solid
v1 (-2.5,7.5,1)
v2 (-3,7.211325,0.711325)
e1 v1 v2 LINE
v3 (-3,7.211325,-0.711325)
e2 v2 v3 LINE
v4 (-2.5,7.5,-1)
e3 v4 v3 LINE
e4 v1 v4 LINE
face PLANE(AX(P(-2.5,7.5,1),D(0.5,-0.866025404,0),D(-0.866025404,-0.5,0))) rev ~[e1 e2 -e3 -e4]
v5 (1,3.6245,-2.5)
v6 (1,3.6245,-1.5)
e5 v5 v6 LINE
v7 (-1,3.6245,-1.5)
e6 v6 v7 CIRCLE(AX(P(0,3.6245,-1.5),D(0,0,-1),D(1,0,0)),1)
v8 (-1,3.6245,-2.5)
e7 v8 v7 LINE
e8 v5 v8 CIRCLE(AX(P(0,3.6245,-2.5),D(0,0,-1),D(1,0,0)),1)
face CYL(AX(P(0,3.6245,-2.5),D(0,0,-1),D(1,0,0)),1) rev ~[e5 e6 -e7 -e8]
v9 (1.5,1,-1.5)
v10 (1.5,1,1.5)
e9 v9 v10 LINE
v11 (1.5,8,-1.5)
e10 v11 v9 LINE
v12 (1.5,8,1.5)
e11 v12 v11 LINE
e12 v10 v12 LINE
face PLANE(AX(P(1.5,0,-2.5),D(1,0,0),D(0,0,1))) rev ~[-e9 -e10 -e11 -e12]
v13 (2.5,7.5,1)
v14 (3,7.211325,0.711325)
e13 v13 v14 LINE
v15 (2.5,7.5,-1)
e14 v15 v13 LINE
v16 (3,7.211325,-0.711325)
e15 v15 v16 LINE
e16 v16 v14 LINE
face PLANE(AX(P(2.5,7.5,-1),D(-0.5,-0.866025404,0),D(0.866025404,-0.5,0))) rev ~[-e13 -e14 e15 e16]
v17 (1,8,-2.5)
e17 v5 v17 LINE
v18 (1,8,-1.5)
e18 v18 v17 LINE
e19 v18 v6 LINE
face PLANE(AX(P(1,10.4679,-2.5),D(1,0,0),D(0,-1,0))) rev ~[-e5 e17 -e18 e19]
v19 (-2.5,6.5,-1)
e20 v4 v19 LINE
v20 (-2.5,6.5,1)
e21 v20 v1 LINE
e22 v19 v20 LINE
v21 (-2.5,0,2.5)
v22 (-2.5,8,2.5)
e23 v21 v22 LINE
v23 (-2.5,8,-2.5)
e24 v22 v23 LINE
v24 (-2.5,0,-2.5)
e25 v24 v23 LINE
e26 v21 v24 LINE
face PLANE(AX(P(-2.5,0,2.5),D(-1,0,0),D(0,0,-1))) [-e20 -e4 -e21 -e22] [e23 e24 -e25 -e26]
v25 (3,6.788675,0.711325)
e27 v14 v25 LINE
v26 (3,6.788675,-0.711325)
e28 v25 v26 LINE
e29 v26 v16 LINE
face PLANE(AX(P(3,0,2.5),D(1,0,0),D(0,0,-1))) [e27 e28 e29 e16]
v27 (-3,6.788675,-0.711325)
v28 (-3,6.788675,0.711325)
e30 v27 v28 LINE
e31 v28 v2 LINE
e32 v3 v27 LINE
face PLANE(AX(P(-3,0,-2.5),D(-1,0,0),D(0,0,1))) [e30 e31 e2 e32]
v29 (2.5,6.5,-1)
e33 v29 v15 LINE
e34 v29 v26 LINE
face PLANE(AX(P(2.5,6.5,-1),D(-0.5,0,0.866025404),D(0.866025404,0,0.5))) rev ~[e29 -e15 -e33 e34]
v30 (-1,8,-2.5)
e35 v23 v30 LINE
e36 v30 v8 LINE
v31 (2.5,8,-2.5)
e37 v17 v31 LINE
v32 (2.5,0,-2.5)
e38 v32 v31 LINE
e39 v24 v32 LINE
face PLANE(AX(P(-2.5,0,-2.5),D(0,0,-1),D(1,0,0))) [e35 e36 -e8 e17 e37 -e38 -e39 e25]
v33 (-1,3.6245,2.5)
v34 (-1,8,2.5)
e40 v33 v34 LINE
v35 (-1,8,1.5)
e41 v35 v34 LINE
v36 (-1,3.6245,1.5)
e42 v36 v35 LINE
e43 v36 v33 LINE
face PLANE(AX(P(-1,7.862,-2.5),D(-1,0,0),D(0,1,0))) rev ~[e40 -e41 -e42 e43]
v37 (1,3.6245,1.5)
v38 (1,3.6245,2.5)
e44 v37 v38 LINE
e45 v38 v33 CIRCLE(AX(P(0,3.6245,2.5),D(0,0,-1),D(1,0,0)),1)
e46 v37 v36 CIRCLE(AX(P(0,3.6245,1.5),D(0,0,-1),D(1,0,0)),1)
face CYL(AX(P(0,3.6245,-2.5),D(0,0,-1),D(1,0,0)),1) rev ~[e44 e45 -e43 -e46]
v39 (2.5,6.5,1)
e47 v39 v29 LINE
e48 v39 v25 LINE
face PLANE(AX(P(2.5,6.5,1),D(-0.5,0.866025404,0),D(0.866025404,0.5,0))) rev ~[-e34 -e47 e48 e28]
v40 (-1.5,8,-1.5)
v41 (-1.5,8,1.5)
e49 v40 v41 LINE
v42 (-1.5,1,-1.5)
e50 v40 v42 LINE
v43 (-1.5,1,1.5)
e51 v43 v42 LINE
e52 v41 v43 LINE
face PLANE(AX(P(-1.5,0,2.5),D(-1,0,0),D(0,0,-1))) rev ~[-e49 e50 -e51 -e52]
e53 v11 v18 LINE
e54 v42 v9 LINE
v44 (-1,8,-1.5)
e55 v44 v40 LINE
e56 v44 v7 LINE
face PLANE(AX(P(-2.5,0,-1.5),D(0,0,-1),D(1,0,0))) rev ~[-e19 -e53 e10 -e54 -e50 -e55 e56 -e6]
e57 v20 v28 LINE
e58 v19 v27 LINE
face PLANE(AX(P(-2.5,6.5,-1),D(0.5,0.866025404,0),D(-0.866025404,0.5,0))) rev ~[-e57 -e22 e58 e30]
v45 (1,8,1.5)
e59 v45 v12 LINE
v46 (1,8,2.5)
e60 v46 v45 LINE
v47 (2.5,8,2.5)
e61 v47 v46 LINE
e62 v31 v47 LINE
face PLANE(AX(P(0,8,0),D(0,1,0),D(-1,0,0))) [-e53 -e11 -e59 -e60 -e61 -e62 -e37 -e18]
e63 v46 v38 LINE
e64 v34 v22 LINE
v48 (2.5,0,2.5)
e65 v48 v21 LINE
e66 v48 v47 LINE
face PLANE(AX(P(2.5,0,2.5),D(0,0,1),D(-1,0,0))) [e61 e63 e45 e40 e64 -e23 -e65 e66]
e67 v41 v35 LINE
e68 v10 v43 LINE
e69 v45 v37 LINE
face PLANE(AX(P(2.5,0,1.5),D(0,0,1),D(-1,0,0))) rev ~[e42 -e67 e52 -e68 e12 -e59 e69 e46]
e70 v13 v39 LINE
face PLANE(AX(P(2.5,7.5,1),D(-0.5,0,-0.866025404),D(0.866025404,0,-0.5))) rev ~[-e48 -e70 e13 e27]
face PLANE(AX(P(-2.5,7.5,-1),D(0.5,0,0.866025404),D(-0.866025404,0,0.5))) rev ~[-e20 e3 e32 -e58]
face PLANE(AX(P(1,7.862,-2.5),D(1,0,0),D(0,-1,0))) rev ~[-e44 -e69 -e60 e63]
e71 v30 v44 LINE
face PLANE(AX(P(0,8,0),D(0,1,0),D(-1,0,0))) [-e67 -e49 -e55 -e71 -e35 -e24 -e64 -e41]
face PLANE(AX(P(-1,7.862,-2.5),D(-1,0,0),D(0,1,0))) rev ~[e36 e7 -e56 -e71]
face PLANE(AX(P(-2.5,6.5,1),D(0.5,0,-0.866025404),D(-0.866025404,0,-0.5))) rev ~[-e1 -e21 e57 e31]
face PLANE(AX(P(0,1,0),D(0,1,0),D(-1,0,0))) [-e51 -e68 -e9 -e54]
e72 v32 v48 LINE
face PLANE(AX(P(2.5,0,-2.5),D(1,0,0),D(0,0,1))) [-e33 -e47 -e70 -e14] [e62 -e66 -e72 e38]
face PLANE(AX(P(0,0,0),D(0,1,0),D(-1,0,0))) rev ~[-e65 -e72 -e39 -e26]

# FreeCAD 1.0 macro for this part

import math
import FreeCAD as App
import Part
import Sketcher

V = App.Vector
Q = App.Units.Quantity


def faces_at(feature, points):
    """Names of the faces that lie closest to the given points."""
    faces = feature.Shape.Faces
    near = lambda p: min(range(len(faces)), key=lambda i: faces[i].distToShape(Part.Vertex(*p))[0])
    return sorted({f"Face{near(p) + 1}" for p in points})

doc = App.newDocument("Part")
body = doc.addObject("PartDesign::Body", "Body")

# Sketch on XZ plane
sketch1 = doc.addObject("Sketcher::SketchObject", "Sketch")
body.addObject(sketch1)
sketch1.AttachmentSupport = (doc.XZ_Plane, [""])
sketch1.MapMode = "FlatFace"
sketch1.addGeometry(Part.LineSegment(V(-2, 2, 0), V(2, 2, 0)), False)
sketch1.addGeometry(Part.LineSegment(V(2, 2, 0), V(2, -2, 0)), False)
sketch1.addGeometry(Part.LineSegment(V(2, -2, 0), V(-2, -2, 0)), False)
sketch1.addGeometry(Part.LineSegment(V(-2, -2, 0), V(-2, 2, 0)), False)
sketch1.addConstraint(Sketcher.Constraint("Coincident", 0, 2, 1, 1))
sketch1.addConstraint(Sketcher.Constraint("Coincident", 1, 2, 2, 1))
sketch1.addConstraint(Sketcher.Constraint("Coincident", 2, 2, 3, 1))
sketch1.addConstraint(Sketcher.Constraint("Coincident", 3, 2, 0, 1))
sketch1.addConstraint(Sketcher.Constraint("Horizontal", 0))
sketch1.addConstraint(Sketcher.Constraint("Vertical", 1))
sketch1.addConstraint(Sketcher.Constraint("Horizontal", 2))
sketch1.addConstraint(Sketcher.Constraint("Vertical", 3))
sketch1.addConstraint(Sketcher.Constraint("Symmetric", 0, 2, 2, 2, -1, 1))
sketch1.addConstraint(Sketcher.Constraint("Equal", 2, 1))
sketch1.addConstraint(Sketcher.Constraint("DistanceX", 0, 1, 0, 2, Q("5 mm")))
pad1 = doc.addObject("PartDesign::Pad", "Pad")
body.addObject(pad1)
pad1.Profile = sketch1
pad1.Length = 8
pad1.Reversed = True
doc.recompute()

thickness = doc.addObject("PartDesign::Thickness", "Thickness")
body.addObject(thickness)
thickness.Base = (pad1, faces_at(pad1, [(-0.833, 8, -0.833)]))
thickness.Value = 1
thickness.Reversed = True
thickness.Join = "Intersection"

# Sketch on YZ plane
sketch2 = doc.addObject("Sketcher::SketchObject", "Sketch001")
body.addObject(sketch2)
sketch2.AttachmentSupport = (doc.YZ_Plane, [""])
sketch2.MapMode = "FlatFace"
sketch2.AttachmentOffset = App.Placement(V(0, 0, 2.5), App.Rotation())
sketch2.addGeometry(Part.LineSegment(V(7.5, 1, 0), V(6.5, 1, 0)), False)
sketch2.addGeometry(Part.LineSegment(V(6.5, 1, 0), V(6.5, -1, 0)), False)
sketch2.addGeometry(Part.LineSegment(V(6.5, -1, 0), V(7.5, -1, 0)), False)
sketch2.addGeometry(Part.LineSegment(V(7.5, -1, 0), V(7.5, 1, 0)), False)
sketch2.addConstraint(Sketcher.Constraint("Coincident", 0, 2, 1, 1))
sketch2.addConstraint(Sketcher.Constraint("Coincident", 1, 2, 2, 1))
sketch2.addConstraint(Sketcher.Constraint("Coincident", 2, 2, 3, 1))
sketch2.addConstraint(Sketcher.Constraint("Coincident", 3, 2, 0, 1))
sketch2.addConstraint(Sketcher.Constraint("Horizontal", 0))
sketch2.addConstraint(Sketcher.Constraint("Vertical", 1))
sketch2.addConstraint(Sketcher.Constraint("Horizontal", 2))
sketch2.addConstraint(Sketcher.Constraint("Vertical", 3))
sketch2.addConstraint(Sketcher.Constraint("DistanceX", 0, 2, 0, 1, Q("1 mm")))
sketch2.addConstraint(Sketcher.Constraint("DistanceY", 1, 2, 1, 1, Q("2 mm")))
sketch2.addConstraint(Sketcher.Constraint("DistanceY", -1, 1, 0, 2, Q("1 mm")))
sketch2.addConstraint(Sketcher.Constraint("DistanceX", -1, 1, 0, 2, Q("6.5 mm")))
pad2 = doc.addObject("PartDesign::Pad", "Pad001")
body.addObject(pad2)
pad2.Profile = sketch2
pad2.Length = 0.5
pad2.TaperAngle = -30

# Sketch on YZ plane
sketch3 = doc.addObject("Sketcher::SketchObject", "Sketch002")
body.addObject(sketch3)
sketch3.AttachmentSupport = (doc.YZ_Plane, [""])
sketch3.MapMode = "FlatFace"
sketch3.AttachmentOffset = App.Placement(V(0, 0, -2.5), App.Rotation())
sketch3.addGeometry(Part.LineSegment(V(7.5, -1, 0), V(6.5, -1, 0)), False)
sketch3.addGeometry(Part.LineSegment(V(6.5, -1, 0), V(6.5, 1, 0)), False)
sketch3.addGeometry(Part.LineSegment(V(6.5, 1, 0), V(7.5, 1, 0)), False)
sketch3.addGeometry(Part.LineSegment(V(7.5, 1, 0), V(7.5, -1, 0)), False)
sketch3.addConstraint(Sketcher.Constraint("Coincident", 0, 2, 1, 1))
sketch3.addConstraint(Sketcher.Constraint("Coincident", 1, 2, 2, 1))
sketch3.addConstraint(Sketcher.Constraint("Coincident", 2, 2, 3, 1))
sketch3.addConstraint(Sketcher.Constraint("Coincident", 3, 2, 0, 1))
sketch3.addConstraint(Sketcher.Constraint("Horizontal", 0))
sketch3.addConstraint(Sketcher.Constraint("Vertical", 1))
sketch3.addConstraint(Sketcher.Constraint("Horizontal", 2))
sketch3.addConstraint(Sketcher.Constraint("Vertical", 3))
sketch3.addConstraint(Sketcher.Constraint("DistanceX", 0, 2, 0, 1, Q("1 mm")))
sketch3.addConstraint(Sketcher.Constraint("DistanceY", 1, 1, 1, 2, Q("2 mm")))
sketch3.addConstraint(Sketcher.Constraint("DistanceY", 0, 2, -1, 1, Q("1 mm")))
sketch3.addConstraint(Sketcher.Constraint("DistanceX", -1, 1, 0, 2, Q("6.5 mm")))
pad3 = doc.addObject("PartDesign::Pad", "Pad002")
body.addObject(pad3)
pad3.Profile = sketch3
pad3.Length = 0.5
pad3.Reversed = True
pad3.TaperAngle = -30

# Sketch on XY plane
sketch4 = doc.addObject("Sketcher::SketchObject", "Sketch003")
body.addObject(sketch4)
sketch4.AttachmentSupport = (doc.XY_Plane, [""])
sketch4.MapMode = "FlatFace"
sketch4.AttachmentOffset = App.Placement(V(0, 0, -2.5), App.Rotation())
sketch4.addGeometry(Part.ArcOfCircle(Part.Circle(V(0, 7.9, 0), V(0, 0, 1), 1), math.radians(0), math.radians(180)), False)
sketch4.addGeometry(Part.LineSegment(V(1, 7.9, 0), V(1, 3.6, 0)), False)
sketch4.addGeometry(Part.ArcOfCircle(Part.Circle(V(0, 3.6, 0), V(0, 0, 1), 1), math.radians(180), math.radians(360)), False)
sketch4.addGeometry(Part.LineSegment(V(-1, 3.6, 0), V(-1, 7.9, 0)), False)
sketch4.addConstraint(Sketcher.Constraint("Tangent", 0, 1, 1, 1))
sketch4.addConstraint(Sketcher.Constraint("Tangent", 1, 2, 2, 2))
sketch4.addConstraint(Sketcher.Constraint("Tangent", 2, 1, 3, 1))
sketch4.addConstraint(Sketcher.Constraint("Tangent", 3, 2, 0, 2))
sketch4.addConstraint(Sketcher.Constraint("Vertical", 1))
sketch4.addConstraint(Sketcher.Constraint("Vertical", 3))
sketch4.addConstraint(Sketcher.Constraint("PointOnObject", 0, 3, -2))
sketch4.addConstraint(Sketcher.Constraint("Radius", 0, Q("1 mm")))
sketch4.addConstraint(Sketcher.Constraint("DistanceY", 1, 2, 1, 1, Q("4.2375 mm")))
sketch4.addConstraint(Sketcher.Constraint("DistanceY", -1, 1, 0, 3, Q("7.862 mm")))
pocket1 = doc.addObject("PartDesign::Pocket", "Pocket")
body.addObject(pocket1)
pocket1.Profile = sketch4
pocket1.Type = "ThroughAll"
pocket1.Reversed = True

# Sketch on XY plane
sketch5 = doc.addObject("Sketcher::SketchObject", "Sketch004")
body.addObject(sketch5)
sketch5.AttachmentSupport = (doc.XY_Plane, [""])
sketch5.MapMode = "FlatFace"
sketch5.AttachmentOffset = App.Placement(V(0, 0, -2.5), App.Rotation())
sketch5.addGeometry(Part.LineSegment(V(1, 10.5, 0), V(1, 7.9, 0)), False)
sketch5.addGeometry(Part.LineSegment(V(1, 7.9, 0), V(-1, 7.9, 0)), False)
sketch5.addGeometry(Part.LineSegment(V(-1, 7.9, 0), V(-1, 10.5, 0)), False)
sketch5.addGeometry(Part.LineSegment(V(-1, 10.5, 0), V(1, 10.5, 0)), False)
sketch5.addConstraint(Sketcher.Constraint("Coincident", 0, 2, 1, 1))
sketch5.addConstraint(Sketcher.Constraint("Coincident", 1, 2, 2, 1))
sketch5.addConstraint(Sketcher.Constraint("Coincident", 2, 2, 3, 1))
sketch5.addConstraint(Sketcher.Constraint("Coincident", 3, 2, 0, 1))
sketch5.addConstraint(Sketcher.Constraint("Vertical", 0))
sketch5.addConstraint(Sketcher.Constraint("Horizontal", 1))
sketch5.addConstraint(Sketcher.Constraint("Vertical", 2))
sketch5.addConstraint(Sketcher.Constraint("Horizontal", 3))
sketch5.addConstraint(Sketcher.Constraint("DistanceX", 1, 2, 1, 1, Q("2 mm")))
sketch5.addConstraint(Sketcher.Constraint("DistanceX", -1, 1, 0, 2, Q("1 mm")))
sketch5.addConstraint(Sketcher.Constraint("DistanceY", 0, 2, 0, 1, Q("2.606 mm")))
sketch5.addConstraint(Sketcher.Constraint("DistanceY", -1, 1, 0, 2, Q("7.862 mm")))
pocket2 = doc.addObject("PartDesign::Pocket", "Pocket001")
body.addObject(pocket2)
pocket2.Profile = sketch5
pocket2.Type = "ThroughAll"
pocket2.Reversed = True

doc.recompute()
